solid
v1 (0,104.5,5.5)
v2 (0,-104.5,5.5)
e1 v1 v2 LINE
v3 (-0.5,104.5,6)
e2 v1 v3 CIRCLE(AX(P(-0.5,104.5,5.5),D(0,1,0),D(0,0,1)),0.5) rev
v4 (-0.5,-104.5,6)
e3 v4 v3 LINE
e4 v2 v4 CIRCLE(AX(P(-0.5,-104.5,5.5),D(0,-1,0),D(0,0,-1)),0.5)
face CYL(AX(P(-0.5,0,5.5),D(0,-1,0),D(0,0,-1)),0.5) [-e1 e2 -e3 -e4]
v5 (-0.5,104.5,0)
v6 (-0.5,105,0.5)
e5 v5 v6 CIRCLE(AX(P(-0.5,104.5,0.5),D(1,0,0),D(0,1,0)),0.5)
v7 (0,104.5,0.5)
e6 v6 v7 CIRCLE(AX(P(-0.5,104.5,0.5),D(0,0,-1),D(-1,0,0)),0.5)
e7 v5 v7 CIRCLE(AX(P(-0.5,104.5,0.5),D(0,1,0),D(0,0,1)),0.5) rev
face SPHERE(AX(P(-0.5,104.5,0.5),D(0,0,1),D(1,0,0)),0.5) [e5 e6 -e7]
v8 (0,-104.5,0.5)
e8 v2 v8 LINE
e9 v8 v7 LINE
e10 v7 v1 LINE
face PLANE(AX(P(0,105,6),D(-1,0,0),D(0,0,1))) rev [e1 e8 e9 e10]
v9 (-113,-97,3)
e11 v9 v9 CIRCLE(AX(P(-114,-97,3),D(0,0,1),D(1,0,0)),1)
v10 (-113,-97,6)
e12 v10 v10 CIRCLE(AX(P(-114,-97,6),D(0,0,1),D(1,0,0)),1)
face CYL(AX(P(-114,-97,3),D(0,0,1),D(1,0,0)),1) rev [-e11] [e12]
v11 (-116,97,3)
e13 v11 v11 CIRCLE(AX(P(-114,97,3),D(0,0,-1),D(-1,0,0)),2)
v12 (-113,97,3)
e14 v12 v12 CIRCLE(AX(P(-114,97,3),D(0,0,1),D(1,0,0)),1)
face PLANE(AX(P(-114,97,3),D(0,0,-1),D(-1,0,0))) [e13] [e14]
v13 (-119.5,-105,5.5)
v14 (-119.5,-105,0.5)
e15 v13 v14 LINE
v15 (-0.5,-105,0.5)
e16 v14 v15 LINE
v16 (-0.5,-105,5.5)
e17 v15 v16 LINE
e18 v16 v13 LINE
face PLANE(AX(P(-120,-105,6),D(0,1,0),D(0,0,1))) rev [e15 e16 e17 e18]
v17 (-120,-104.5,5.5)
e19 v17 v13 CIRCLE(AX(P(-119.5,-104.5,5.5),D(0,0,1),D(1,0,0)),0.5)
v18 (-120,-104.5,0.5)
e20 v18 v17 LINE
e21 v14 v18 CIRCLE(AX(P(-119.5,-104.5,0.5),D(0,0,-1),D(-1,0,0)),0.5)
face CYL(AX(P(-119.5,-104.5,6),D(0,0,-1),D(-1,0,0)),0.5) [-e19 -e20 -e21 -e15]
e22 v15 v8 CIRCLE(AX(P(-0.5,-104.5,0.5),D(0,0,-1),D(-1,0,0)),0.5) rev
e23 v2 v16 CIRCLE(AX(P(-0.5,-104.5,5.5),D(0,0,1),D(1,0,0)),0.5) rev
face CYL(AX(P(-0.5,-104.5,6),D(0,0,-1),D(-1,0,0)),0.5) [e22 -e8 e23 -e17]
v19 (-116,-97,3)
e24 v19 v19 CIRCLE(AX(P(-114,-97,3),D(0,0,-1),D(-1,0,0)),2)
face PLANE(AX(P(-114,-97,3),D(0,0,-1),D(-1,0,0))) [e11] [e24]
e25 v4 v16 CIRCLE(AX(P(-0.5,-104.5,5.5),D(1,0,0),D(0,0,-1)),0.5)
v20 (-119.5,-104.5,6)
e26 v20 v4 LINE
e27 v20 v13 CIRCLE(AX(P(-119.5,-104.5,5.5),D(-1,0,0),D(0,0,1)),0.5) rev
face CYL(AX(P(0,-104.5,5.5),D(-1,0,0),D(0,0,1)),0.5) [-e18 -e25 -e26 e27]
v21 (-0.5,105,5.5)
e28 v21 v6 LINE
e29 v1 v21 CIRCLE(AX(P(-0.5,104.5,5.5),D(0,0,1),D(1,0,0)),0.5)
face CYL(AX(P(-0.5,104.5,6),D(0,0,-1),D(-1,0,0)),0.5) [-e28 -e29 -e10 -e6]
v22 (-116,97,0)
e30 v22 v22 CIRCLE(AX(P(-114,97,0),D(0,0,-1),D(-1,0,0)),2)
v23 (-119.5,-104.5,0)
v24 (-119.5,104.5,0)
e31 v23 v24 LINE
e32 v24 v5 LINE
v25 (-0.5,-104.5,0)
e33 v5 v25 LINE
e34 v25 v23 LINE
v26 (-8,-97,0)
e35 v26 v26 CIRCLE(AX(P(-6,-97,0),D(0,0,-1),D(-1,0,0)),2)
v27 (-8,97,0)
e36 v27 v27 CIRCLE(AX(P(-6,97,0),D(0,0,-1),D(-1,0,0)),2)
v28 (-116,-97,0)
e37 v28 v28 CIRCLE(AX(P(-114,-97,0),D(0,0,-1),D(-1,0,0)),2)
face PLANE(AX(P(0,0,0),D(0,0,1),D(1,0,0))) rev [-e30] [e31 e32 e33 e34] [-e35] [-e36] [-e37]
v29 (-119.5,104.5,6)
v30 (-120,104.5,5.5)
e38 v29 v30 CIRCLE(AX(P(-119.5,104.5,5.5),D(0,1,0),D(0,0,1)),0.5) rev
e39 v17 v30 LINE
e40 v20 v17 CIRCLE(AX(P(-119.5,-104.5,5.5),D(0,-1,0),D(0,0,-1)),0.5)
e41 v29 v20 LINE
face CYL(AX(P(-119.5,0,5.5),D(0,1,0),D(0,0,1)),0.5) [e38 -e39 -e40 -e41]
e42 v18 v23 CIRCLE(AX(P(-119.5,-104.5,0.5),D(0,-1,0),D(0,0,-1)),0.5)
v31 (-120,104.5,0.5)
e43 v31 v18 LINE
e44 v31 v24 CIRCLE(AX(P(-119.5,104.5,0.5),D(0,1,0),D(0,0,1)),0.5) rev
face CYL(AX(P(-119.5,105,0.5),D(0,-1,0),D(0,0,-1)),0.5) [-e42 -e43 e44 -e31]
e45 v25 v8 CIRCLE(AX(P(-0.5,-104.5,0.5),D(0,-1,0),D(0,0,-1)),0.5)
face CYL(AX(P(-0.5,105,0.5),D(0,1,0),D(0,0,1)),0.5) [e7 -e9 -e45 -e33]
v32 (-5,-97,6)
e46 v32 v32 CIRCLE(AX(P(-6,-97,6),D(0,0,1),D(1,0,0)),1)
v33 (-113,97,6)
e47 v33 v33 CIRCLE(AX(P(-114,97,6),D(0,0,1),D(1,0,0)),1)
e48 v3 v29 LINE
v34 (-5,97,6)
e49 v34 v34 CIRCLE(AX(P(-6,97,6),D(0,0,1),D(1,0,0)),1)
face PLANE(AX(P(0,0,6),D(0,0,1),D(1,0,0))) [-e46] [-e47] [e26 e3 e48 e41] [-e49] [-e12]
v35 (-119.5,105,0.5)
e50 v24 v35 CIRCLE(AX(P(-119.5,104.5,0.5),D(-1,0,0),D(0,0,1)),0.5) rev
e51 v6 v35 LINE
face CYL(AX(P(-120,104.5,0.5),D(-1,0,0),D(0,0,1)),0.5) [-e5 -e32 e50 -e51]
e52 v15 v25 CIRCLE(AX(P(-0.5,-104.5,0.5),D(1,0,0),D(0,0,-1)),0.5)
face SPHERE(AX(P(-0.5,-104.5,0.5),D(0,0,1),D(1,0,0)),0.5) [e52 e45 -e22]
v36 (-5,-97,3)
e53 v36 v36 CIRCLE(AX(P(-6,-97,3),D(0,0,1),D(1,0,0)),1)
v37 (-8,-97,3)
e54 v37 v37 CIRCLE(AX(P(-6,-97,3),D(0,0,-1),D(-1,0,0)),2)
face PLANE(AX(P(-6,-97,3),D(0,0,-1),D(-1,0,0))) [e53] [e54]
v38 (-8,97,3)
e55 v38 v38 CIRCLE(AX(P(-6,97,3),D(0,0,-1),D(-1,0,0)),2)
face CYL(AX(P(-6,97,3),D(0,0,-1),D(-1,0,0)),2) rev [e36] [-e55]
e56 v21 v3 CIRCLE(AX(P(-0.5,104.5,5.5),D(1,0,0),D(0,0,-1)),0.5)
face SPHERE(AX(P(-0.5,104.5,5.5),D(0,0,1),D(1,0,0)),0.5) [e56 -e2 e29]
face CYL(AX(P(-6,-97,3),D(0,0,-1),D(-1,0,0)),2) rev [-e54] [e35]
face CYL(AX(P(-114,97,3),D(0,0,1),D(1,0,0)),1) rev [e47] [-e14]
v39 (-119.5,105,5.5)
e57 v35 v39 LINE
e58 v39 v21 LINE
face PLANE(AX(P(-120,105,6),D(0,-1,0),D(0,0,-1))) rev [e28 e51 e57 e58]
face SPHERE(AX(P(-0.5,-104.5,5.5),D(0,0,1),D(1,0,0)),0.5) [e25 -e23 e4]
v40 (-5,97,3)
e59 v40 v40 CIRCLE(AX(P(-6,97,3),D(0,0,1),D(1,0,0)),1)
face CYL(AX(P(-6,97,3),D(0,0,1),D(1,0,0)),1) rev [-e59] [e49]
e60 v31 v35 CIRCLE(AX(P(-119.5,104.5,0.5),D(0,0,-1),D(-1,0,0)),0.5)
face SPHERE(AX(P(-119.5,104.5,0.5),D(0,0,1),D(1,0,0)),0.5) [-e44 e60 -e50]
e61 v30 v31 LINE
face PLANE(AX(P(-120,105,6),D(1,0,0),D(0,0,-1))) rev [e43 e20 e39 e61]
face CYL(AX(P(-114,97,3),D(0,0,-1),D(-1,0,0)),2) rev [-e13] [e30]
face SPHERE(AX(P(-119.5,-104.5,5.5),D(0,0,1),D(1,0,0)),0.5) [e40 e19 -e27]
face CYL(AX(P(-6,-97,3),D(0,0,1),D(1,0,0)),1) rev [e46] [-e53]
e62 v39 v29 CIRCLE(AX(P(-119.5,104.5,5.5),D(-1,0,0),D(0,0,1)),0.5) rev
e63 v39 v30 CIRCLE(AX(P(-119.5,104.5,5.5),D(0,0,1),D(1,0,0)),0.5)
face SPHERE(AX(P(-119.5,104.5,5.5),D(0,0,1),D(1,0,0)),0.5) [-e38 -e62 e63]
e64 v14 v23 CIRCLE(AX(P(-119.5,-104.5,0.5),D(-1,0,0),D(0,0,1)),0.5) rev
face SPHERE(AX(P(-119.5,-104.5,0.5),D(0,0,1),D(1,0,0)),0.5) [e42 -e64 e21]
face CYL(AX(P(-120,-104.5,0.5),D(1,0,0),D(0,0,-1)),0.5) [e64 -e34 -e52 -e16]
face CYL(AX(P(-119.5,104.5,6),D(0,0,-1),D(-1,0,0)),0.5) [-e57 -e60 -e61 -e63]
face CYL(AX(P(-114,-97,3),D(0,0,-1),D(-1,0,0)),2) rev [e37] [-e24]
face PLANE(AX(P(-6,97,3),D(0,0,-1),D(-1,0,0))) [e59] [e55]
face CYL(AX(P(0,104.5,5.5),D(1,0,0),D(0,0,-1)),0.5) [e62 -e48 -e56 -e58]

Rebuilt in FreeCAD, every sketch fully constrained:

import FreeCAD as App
import Part
import Sketcher

V = App.Vector
Q = App.Units.Quantity


def edges_at(feature, points):
    """Names of the edges that pass closest to the given points."""
    edges = feature.Shape.Edges
    near = lambda p: min(range(len(edges)), key=lambda i: edges[i].distToShape(Part.Vertex(*p))[0])
    return sorted({f"Edge{near(p) + 1}" for p in points})


def add_polygon(sketch, points):
    """Adds a closed chain of lines whose ends are joined by coincident constraints."""
    first, n = sketch.GeometryCount, len(points)
    for a, b in zip(points, points[1:] + points[:1]):
        sketch.addGeometry(Part.LineSegment(App.Vector(*a, 0), App.Vector(*b, 0)), False)
    for i in range(n):
        sketch.addConstraint(Sketcher.Constraint("Coincident", first + i, 2, first + (i + 1) % n, 1))

doc = App.newDocument("Part")
params = doc.addObject("Spreadsheet::Sheet", "Params")
for row, (alias, value) in enumerate([
    ("sketch1_width", "120 mm"),
    ("sketch1_height", "210 mm"),
    ("pad1_length", "6 mm"),
    ("sketch2_diameter", "4 mm"),
    ("pocket1_length", "3 mm"),
    ("sketch3_diameter", "2 mm"),
    ("pocket2_length", "3 mm"),
    ("fillet_radius", "0.5 mm"),
], start=1):
    params.set(f"A{row}", alias)
    params.set(f"B{row}", "=" + value)
    params.setAlias(f"B{row}", alias)

body = doc.addObject("PartDesign::Body", "Body")

sketch1 = doc.addObject("Sketcher::SketchObject", "Sketch")
body.addObject(sketch1)
sketch1.AttachmentSupport = (doc.XY_Plane, [""])
sketch1.MapMode = "FlatFace"
add_polygon(sketch1, [(-120, 105), (-120, -105), (0, -105), (0, 105)])
sketch1.addConstraint([
    Sketcher.Constraint("Vertical", 0),
    Sketcher.Constraint("Horizontal", 1),
    Sketcher.Constraint("Vertical", 2),
    Sketcher.Constraint("Horizontal", 3),
    Sketcher.Constraint("Symmetric", 1, 2, 2, 2, -1, 1),
    Sketcher.Constraint("DistanceX", 1, 1, 1, 2, Q("120 mm")),
    Sketcher.Constraint("DistanceY", 0, 2, 0, 1, Q("210 mm")),
])
sketch1.setExpression("Constraints[9]", "Params.sketch1_width")
sketch1.setExpression("Constraints[10]", "Params.sketch1_height")
pad1 = doc.addObject("PartDesign::Pad", "Pad")
body.addObject(pad1)
pad1.Profile = sketch1
pad1.setExpression("Length", "Params.pad1_length")

sketch2 = doc.addObject("Sketcher::SketchObject", "Sketch001")
body.addObject(sketch2)
sketch2.AttachmentSupport = (doc.XY_Plane, [""])
sketch2.MapMode = "FlatFace"
sketch2.addGeometry([
    Part.Circle(V(-6, 97, 0), V(0, 0, 1), 2),
    Part.Circle(V(-114, 97, 0), V(0, 0, 1), 2),
    Part.Circle(V(-6, -97, 0), V(0, 0, 1), 2),
    Part.Circle(V(-114, -97, 0), V(0, 0, 1), 2),
], False)
sketch2.addConstraint([
    Sketcher.Constraint("Equal", 0, 1),
    Sketcher.Constraint("Equal", 1, 2),
    Sketcher.Constraint("Equal", 2, 3),
    Sketcher.Constraint("Symmetric", 0, 3, 2, 3, -1),
    Sketcher.Constraint("Symmetric", 1, 3, 3, 3, -1),
    Sketcher.Constraint("Horizontal", 0, 3, 1, 3),
    Sketcher.Constraint("Diameter", 0, Q("4 mm")),
    Sketcher.Constraint("DistanceX", 0, 3, -1, 1, Q("6 mm")),
    Sketcher.Constraint("DistanceY", -1, 1, 0, 3, Q("97 mm")),
    Sketcher.Constraint("DistanceX", 1, 3, -1, 1, Q("114 mm")),
])
sketch2.setExpression("Constraints[6]", "Params.sketch2_diameter")
pocket1 = doc.addObject("PartDesign::Pocket", "Pocket")
body.addObject(pocket1)
pocket1.Profile = sketch2
pocket1.setExpression("Length", "Params.pocket1_length")
pocket1.Reversed = True

sketch3 = doc.addObject("Sketcher::SketchObject", "Sketch002")
body.addObject(sketch3)
sketch3.AttachmentSupport = (doc.XY_Plane, [""])
sketch3.MapMode = "FlatFace"
sketch3.AttachmentOffset = App.Placement(V(0, 0, 6), App.Rotation())
sketch3.addGeometry([
    Part.Circle(V(-114, 97, 0), V(0, 0, 1), 1),
    Part.Circle(V(-6, 97, 0), V(0, 0, 1), 1),
    Part.Circle(V(-6, -97, 0), V(0, 0, 1), 1),
    Part.Circle(V(-114, -97, 0), V(0, 0, 1), 1),
], False)
sketch3.addConstraint([
    Sketcher.Constraint("Equal", 0, 1),
    Sketcher.Constraint("Equal", 1, 2),
    Sketcher.Constraint("Equal", 2, 3),
    Sketcher.Constraint("Symmetric", 1, 3, 2, 3, -1),
    Sketcher.Constraint("Symmetric", 0, 3, 3, 3, -1),
    Sketcher.Constraint("Horizontal", 0, 3, 1, 3),
    Sketcher.Constraint("Diameter", 0, Q("2 mm")),
    Sketcher.Constraint("DistanceX", 0, 3, -1, 1, Q("114 mm")),
    Sketcher.Constraint("DistanceY", -1, 1, 0, 3, Q("97 mm")),
    Sketcher.Constraint("DistanceX", 1, 3, -1, 1, Q("6 mm")),
])
sketch3.setExpression("Constraints[6]", "Params.sketch3_diameter")
pocket2 = doc.addObject("PartDesign::Pocket", "Pocket001")
body.addObject(pocket2)
pocket2.Profile = sketch3
pocket2.setExpression("Length", "Params.pocket2_length")
doc.recompute()

fillet = doc.addObject("PartDesign::Fillet", "Fillet")
body.addObject(fillet)
fillet.Base = (pocket2, edges_at(pocket2, [
    (0, 0, 6),
    (-60, 105, 6),
    (-120, 0, 6),
    (-60, 105, 0),
    (0, 0, 0),
    (-60, -105, 0),
    (-120, 0, 0),
    (-120, 105, 3),
    (0, 105, 3),
    (0, -105, 3),
    (-120, -105, 3),
    (-60, -105, 6),
]))
fillet.setExpression("Radius", "Params.fillet_radius")

doc.recompute()
